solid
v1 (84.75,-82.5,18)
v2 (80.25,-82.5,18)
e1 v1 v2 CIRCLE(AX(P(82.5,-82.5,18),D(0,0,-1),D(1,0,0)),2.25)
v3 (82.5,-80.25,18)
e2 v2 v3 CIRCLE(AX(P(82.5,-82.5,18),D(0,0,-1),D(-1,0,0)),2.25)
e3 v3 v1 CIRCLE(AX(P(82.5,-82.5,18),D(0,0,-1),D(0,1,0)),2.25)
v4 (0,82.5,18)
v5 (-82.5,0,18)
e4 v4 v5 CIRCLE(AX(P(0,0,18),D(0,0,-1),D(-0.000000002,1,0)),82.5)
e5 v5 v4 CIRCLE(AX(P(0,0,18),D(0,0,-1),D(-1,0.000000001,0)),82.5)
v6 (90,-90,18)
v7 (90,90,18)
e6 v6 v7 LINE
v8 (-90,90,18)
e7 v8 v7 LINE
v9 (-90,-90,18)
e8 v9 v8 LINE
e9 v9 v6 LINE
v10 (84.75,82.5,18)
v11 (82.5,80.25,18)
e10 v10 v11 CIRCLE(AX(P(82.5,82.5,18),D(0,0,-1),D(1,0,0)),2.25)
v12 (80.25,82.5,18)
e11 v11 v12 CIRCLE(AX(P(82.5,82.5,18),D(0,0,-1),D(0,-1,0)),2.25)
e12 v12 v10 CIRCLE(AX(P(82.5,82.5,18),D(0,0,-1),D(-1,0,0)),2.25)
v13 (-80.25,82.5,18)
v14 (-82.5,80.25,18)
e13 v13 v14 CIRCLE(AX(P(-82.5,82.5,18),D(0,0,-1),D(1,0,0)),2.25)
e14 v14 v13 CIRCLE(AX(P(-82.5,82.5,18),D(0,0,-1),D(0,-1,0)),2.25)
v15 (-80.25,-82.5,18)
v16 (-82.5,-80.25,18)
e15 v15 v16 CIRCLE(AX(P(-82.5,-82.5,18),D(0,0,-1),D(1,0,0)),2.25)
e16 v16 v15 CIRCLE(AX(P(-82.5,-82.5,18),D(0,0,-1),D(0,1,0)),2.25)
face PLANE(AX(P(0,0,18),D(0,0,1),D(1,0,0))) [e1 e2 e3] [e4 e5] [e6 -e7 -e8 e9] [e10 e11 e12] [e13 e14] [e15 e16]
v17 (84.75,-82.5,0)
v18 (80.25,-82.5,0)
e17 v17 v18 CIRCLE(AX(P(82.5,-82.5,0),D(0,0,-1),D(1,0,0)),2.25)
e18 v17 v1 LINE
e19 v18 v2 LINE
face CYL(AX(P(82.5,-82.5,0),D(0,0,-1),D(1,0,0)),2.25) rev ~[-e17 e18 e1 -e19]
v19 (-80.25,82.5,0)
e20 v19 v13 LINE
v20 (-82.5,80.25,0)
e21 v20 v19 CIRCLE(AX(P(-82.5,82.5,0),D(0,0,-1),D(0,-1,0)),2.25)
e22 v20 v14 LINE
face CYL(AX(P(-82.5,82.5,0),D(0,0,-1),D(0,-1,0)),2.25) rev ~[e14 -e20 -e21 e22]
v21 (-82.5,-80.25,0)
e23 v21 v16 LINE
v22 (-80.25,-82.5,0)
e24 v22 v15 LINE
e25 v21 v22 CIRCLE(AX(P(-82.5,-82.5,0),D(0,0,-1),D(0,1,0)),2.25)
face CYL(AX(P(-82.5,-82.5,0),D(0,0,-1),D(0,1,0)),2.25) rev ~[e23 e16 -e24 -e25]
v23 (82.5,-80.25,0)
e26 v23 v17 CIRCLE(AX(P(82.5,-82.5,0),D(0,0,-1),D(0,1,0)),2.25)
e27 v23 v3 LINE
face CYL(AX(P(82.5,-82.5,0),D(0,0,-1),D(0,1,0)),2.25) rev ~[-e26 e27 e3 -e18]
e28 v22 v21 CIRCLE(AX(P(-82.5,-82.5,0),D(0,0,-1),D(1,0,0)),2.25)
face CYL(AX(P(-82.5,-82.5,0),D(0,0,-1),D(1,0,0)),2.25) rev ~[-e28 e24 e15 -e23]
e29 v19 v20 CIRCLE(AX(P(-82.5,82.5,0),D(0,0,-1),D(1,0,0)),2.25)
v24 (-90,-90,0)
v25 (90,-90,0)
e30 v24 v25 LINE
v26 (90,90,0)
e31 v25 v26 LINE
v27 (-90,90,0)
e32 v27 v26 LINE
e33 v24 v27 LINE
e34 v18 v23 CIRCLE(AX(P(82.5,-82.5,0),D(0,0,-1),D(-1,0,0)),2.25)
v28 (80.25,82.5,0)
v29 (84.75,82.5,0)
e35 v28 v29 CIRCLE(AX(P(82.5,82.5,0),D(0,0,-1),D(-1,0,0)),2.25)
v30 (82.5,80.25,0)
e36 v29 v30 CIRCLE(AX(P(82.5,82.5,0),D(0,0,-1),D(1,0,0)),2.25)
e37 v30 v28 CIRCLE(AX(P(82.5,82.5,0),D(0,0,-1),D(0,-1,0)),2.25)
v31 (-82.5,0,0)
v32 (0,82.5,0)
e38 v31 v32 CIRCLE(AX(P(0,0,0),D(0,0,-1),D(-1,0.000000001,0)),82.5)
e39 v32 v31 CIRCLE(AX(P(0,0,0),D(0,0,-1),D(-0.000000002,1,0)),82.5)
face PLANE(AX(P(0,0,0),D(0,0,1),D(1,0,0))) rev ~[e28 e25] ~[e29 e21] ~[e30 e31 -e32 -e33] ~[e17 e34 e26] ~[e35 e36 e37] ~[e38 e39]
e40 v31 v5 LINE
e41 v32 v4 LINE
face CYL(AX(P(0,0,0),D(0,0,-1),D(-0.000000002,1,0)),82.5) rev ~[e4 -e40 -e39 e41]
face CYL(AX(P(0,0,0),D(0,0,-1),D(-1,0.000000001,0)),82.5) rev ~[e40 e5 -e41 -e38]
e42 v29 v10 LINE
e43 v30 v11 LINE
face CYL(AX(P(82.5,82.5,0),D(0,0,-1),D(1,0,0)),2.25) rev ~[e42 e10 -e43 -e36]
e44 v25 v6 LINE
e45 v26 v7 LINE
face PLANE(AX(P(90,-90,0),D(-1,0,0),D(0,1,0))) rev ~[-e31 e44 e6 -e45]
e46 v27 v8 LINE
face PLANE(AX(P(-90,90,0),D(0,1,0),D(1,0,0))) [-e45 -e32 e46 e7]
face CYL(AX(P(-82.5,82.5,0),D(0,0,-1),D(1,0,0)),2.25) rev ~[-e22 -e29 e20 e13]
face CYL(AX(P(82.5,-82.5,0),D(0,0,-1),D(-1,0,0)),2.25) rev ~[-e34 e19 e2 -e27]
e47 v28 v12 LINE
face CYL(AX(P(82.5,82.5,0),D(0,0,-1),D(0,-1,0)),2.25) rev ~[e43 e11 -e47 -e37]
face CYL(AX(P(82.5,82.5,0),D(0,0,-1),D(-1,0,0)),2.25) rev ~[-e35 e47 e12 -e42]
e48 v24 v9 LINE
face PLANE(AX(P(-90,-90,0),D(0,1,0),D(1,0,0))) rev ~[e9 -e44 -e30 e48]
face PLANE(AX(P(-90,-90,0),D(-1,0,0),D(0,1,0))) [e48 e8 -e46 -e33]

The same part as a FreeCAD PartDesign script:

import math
import FreeCAD as App
import Part
import Sketcher
from FreeCAD import Vector
Q = App.Units.Quantity

doc = App.newDocument("Part")
params = doc.addObject("Spreadsheet::Sheet", "Params")
for row, (alias, value) in enumerate([
    ("sketch1_radius", "82.5 mm"),
    ("sketch1_width", "180 mm"),
    ("sketch1_radius2", "2.25 mm"),
    ("pad1_length", "18 mm"),
], start=1):
    params.set(f"A{row}", alias)
    params.set(f"B{row}", "=" + value)
    params.setAlias(f"B{row}", alias)

body = doc.addObject("PartDesign::Body", "Body")

sketch1 = body.newObject("Sketcher::SketchObject", "Sketch")
sketch1.AttachmentSupport = (doc.getObject("XY_Plane"), [""])
sketch1.MapMode = "FlatFace"
sketch1.addGeometry([
    Part.LineSegment(Vector(-90, 90, 0), Vector(-90, -90, 0)),
    Part.LineSegment(Vector(-90, -90, 0), Vector(90, -90, 0)),
    Part.LineSegment(Vector(90, -90, 0), Vector(90, 90, 0)),
    Part.LineSegment(Vector(90, 90, 0), Vector(-90, 90, 0)),
    Part.ArcOfCircle(Part.Circle(Vector(0, 0, 0), Vector(0, 0, 1), 82.5), math.radians(90), math.radians(180)),
    Part.ArcOfCircle(Part.Circle(Vector(0, 0, 0), Vector(0, 0, 1), 82.5), math.radians(180), math.radians(450)),
    Part.ArcOfCircle(Part.Circle(Vector(82.5, 82.5, 0), Vector(0, 0, 1), 2.2), math.radians(0), math.radians(180)),
    Part.ArcOfCircle(Part.Circle(Vector(82.5, 82.5, 0), Vector(0, 0, 1), 2.2), math.radians(-90), math.radians(0)),
    Part.ArcOfCircle(Part.Circle(Vector(82.5, 82.5, 0), Vector(0, 0, 1), 2.2), math.radians(180), math.radians(270)),
    Part.ArcOfCircle(Part.Circle(Vector(82.5, -82.5, 0), Vector(0, 0, 1), 2.2), math.radians(0), math.radians(90)),
    Part.ArcOfCircle(Part.Circle(Vector(82.5, -82.5, 0), Vector(0, 0, 1), 2.2), math.radians(180), math.radians(360)),
    Part.ArcOfCircle(Part.Circle(Vector(82.5, -82.5, 0), Vector(0, 0, 1), 2.2), math.radians(90), math.radians(180)),
    Part.ArcOfCircle(Part.Circle(Vector(-82.5, 82.5, 0), Vector(0, 0, 1), 2.2), math.radians(0), math.radians(270)),
    Part.ArcOfCircle(Part.Circle(Vector(-82.5, 82.5, 0), Vector(0, 0, 1), 2.2), math.radians(-90), math.radians(0)),
    Part.ArcOfCircle(Part.Circle(Vector(-82.5, -82.5, 0), Vector(0, 0, 1), 2.2), math.radians(90), math.radians(360)),
    Part.ArcOfCircle(Part.Circle(Vector(-82.5, -82.5, 0), Vector(0, 0, 1), 2.2), math.radians(0), math.radians(90)),
], False)
sketch1.addConstraint([
    Sketcher.Constraint("Coincident", 0, 2, 1, 1),
    Sketcher.Constraint("Coincident", 1, 2, 2, 1),
    Sketcher.Constraint("Coincident", 2, 2, 3, 1),
    Sketcher.Constraint("Coincident", 3, 2, 0, 1),
    Sketcher.Constraint("Tangent", 4, 1, 5, 2),
    Sketcher.Constraint("Coincident", 5, 1, 4, 2),
    Sketcher.Constraint("Tangent", 6, 1, 7, 2),
    Sketcher.Constraint("Tangent", 7, 1, 8, 2),
    Sketcher.Constraint("Tangent", 8, 1, 6, 2),
    Sketcher.Constraint("Tangent", 9, 1, 10, 2),
    Sketcher.Constraint("Tangent", 10, 1, 11, 2),
    Sketcher.Constraint("Tangent", 11, 1, 9, 2),
    Sketcher.Constraint("Tangent", 12, 1, 13, 2),
    Sketcher.Constraint("Coincident", 13, 1, 12, 2),
    Sketcher.Constraint("Tangent", 14, 1, 15, 2),
    Sketcher.Constraint("Coincident", 15, 1, 14, 2),
    Sketcher.Constraint("Vertical", 0),
    Sketcher.Constraint("Horizontal", 1),
    Sketcher.Constraint("Vertical", 2),
    Sketcher.Constraint("Horizontal", 3),
    Sketcher.Constraint("Coincident", 4, 3, -1, 1),
    Sketcher.Constraint("Equal", 8, 9),
    Sketcher.Constraint("Equal", 11, 12),
    Sketcher.Constraint("Equal", 13, 14),
    Sketcher.Constraint("Symmetric", 9, 3, 12, 3, -1, 1),
    Sketcher.Constraint("Symmetric", 6, 3, 14, 3, -1, 1),
    Sketcher.Constraint("Symmetric", 0, 2, 2, 2, -1, 1),
    Sketcher.Constraint("Symmetric", 6, 3, 12, 3, -2),
    Sketcher.Constraint("PointOnObject", 4, 1, -2),
    Sketcher.Constraint("PointOnObject", 5, 1, -1),
    Sketcher.Constraint("Horizontal", 13, 3, 4, 1),
    Sketcher.Constraint("Horizontal", 4, 1, 6, 1),
    Sketcher.Constraint("Horizontal", 6, 1, 8, 1),
    Sketcher.Constraint("Horizontal", 15, 3, 9, 1),
    Sketcher.Constraint("Horizontal", 9, 1, 10, 1),
    Sketcher.Constraint("Horizontal", 8, 1, 12, 1),
    Sketcher.Constraint("Horizontal", 10, 1, 15, 1),
    Sketcher.Constraint("Vertical", 15, 3, 5, 1),
    Sketcher.Constraint("Vertical", 11, 3, 7, 1),
    Sketcher.Constraint("Vertical", 7, 1, 11, 1),
    Sketcher.Constraint("Vertical", 5, 1, 13, 1),
    Sketcher.Constraint("Vertical", 13, 1, 14, 1),
    Sketcher.Constraint("Equal", 3, 0),
    Sketcher.Constraint("Radius", 4, Q("82.5 mm")),
    Sketcher.Constraint("DistanceX", 1, 1, 1, 2, Q("180 mm")),
    Sketcher.Constraint("Radius", 6, Q("2.25 mm")),
])
sketch1.setExpression("Constraints[43]", "Params.sketch1_radius")
sketch1.setExpression("Constraints[44]", "Params.sketch1_width")
sketch1.setExpression("Constraints[45]", "Params.sketch1_radius2")
pad1 = body.newObject("PartDesign::Pad", "Pad")
pad1.Profile = sketch1
pad1.setExpression("Length", "Params.pad1_length")

doc.recompute()
